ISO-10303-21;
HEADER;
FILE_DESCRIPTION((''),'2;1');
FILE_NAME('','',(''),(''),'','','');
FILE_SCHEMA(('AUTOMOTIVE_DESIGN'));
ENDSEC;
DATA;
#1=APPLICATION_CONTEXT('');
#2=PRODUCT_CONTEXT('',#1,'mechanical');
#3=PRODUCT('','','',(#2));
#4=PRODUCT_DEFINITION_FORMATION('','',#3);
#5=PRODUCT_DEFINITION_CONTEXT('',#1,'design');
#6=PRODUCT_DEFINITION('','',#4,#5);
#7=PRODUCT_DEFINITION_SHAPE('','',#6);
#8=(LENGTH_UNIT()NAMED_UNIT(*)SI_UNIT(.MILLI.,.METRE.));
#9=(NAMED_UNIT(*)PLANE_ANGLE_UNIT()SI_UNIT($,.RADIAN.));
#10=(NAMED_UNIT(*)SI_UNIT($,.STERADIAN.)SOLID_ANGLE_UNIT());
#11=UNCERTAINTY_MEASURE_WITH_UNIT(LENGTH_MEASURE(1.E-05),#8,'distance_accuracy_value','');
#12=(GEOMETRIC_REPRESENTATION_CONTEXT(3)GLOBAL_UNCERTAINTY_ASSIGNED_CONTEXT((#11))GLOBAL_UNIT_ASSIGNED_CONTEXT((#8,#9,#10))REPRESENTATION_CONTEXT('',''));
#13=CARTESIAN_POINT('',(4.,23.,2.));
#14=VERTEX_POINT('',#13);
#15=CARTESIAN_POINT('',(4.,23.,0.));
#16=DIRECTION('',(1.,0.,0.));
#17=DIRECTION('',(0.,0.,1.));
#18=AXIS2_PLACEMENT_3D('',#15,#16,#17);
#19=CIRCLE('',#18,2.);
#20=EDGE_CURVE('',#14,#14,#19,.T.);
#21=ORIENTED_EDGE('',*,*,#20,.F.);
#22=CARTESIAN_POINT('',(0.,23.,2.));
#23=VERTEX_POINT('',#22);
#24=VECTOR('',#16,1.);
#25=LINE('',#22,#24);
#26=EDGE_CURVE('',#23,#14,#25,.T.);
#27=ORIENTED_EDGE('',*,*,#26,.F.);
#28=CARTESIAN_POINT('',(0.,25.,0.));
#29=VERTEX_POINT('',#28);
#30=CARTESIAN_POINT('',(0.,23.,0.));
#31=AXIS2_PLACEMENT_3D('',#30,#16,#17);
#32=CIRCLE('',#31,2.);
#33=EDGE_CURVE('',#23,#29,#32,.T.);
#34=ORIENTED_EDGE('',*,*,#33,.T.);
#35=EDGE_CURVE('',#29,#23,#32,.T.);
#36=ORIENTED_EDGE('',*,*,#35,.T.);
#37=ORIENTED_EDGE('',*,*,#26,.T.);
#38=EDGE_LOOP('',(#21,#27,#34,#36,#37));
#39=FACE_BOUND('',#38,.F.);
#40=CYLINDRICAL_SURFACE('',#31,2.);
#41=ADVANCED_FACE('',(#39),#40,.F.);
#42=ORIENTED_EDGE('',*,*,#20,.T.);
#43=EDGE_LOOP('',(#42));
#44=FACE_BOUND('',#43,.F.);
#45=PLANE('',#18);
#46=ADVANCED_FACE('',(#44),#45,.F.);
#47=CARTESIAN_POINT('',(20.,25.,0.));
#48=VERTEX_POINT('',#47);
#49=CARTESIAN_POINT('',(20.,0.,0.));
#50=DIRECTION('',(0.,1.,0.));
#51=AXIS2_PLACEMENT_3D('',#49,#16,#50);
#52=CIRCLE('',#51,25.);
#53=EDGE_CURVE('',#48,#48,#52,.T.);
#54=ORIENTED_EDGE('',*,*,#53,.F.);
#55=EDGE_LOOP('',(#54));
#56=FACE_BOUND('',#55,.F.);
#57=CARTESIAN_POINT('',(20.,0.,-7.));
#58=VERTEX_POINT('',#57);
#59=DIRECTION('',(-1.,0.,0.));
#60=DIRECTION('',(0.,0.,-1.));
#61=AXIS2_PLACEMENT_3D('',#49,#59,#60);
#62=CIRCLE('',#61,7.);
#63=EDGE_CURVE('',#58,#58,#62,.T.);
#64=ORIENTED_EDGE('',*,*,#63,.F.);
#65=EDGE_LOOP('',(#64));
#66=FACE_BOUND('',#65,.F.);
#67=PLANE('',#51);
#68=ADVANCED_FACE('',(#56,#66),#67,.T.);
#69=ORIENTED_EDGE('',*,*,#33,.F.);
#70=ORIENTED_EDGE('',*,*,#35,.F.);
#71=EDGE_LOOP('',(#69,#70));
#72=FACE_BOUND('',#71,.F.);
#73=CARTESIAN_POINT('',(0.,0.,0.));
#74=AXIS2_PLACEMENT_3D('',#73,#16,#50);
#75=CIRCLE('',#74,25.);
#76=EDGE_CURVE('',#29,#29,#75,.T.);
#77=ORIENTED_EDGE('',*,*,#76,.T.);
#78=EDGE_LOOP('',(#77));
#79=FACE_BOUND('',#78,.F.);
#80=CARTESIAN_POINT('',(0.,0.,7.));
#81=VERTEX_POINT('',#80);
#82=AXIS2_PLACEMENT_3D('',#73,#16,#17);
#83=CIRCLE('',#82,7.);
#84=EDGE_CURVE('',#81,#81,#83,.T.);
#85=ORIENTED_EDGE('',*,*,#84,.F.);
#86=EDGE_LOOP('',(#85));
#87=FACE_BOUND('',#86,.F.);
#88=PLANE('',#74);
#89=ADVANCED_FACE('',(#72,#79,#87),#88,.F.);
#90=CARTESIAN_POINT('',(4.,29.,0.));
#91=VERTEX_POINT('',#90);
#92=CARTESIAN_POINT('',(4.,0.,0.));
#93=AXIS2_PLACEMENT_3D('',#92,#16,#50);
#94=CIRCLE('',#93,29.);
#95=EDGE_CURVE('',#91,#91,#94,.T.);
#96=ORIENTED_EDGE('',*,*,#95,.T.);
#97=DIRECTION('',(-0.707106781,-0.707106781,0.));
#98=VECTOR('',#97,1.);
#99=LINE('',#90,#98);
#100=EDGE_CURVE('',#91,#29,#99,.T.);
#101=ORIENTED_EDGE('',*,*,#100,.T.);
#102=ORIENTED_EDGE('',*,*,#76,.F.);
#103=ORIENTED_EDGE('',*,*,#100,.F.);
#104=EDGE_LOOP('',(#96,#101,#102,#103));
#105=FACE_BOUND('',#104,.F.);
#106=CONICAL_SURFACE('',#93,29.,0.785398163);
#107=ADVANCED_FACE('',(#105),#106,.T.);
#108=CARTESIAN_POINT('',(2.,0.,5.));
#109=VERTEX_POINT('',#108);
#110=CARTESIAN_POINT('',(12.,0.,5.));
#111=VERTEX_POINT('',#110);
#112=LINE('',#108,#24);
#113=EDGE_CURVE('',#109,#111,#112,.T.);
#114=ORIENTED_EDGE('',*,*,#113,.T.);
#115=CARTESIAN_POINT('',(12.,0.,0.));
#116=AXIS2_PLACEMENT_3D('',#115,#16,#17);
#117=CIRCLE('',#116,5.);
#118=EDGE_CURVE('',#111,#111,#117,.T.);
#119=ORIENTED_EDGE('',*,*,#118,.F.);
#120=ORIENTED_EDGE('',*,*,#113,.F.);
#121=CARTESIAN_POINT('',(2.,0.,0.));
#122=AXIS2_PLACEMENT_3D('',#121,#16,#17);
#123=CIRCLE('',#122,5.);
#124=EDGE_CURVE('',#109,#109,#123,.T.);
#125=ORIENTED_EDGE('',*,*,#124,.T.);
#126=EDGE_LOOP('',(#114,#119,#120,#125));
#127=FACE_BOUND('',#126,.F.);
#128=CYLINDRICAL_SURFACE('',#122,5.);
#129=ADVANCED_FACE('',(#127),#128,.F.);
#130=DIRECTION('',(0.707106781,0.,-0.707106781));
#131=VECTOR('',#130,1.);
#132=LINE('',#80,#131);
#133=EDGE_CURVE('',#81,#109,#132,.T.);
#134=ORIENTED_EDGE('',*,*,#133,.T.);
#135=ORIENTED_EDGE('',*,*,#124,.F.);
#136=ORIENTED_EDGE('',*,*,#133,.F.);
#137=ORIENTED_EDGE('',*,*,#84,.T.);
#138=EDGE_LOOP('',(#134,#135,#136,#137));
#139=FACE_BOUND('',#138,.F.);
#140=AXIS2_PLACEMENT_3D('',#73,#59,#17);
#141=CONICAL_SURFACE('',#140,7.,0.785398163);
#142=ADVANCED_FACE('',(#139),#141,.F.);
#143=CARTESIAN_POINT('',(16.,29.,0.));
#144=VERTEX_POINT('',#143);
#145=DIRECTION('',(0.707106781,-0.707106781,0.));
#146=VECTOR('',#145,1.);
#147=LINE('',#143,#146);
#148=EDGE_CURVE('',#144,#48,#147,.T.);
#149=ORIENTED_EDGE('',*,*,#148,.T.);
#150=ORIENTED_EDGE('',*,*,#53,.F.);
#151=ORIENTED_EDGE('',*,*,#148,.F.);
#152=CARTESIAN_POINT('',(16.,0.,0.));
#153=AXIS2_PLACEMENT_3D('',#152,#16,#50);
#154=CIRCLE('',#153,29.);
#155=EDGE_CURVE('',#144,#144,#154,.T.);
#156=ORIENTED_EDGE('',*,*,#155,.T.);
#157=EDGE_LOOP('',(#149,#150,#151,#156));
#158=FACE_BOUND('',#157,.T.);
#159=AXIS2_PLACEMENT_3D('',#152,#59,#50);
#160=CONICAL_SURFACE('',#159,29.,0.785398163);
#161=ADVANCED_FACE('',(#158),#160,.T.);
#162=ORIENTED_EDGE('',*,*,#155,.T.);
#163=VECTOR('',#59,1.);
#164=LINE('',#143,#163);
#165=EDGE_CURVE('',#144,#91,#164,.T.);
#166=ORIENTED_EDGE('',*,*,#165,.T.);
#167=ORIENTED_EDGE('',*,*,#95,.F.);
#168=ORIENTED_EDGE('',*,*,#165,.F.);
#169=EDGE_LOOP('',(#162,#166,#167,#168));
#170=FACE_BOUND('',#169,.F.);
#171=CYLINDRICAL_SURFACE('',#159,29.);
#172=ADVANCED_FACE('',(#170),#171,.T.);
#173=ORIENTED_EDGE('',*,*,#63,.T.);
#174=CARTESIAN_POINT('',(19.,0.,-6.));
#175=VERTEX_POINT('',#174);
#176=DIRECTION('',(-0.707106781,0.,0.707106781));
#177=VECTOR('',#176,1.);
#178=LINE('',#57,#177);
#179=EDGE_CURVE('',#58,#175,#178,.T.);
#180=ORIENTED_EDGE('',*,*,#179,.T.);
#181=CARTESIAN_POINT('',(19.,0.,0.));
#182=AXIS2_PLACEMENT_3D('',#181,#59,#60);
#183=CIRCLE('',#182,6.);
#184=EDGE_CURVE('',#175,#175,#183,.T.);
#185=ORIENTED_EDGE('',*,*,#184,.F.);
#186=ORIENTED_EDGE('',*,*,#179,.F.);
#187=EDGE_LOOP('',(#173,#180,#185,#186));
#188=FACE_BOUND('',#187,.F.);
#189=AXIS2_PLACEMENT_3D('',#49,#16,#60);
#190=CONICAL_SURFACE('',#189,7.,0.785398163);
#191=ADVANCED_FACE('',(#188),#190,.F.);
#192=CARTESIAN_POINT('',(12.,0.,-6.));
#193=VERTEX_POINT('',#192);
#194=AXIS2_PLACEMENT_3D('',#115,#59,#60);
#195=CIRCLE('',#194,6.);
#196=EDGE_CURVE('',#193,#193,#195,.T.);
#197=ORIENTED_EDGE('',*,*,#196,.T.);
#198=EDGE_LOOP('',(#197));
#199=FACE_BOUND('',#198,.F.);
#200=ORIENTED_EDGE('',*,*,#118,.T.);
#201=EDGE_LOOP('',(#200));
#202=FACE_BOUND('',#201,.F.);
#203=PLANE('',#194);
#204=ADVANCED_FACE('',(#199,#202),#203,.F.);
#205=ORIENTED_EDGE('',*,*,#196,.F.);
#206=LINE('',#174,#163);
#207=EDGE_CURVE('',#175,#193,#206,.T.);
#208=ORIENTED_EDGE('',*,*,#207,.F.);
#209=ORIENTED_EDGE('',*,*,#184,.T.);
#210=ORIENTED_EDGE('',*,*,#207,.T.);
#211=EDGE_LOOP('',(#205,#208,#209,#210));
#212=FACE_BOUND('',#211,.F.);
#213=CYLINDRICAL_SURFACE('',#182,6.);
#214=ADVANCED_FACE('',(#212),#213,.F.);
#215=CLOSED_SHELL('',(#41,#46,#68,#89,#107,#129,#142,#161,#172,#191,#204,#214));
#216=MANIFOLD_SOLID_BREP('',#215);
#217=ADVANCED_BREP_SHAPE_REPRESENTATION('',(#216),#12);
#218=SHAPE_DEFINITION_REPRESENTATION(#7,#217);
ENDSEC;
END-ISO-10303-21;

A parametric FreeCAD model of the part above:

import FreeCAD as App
import Part
import Sketcher
from FreeCAD import Vector

doc = App.newDocument("Part")
body = doc.addObject("PartDesign::Body", "Body")

# Sketch on XY plane
sketch1 = body.newObject("Sketcher::SketchObject", "Sketch")
sketch1.AttachmentSupport = (doc.getObject("XY_Plane"), [""])
sketch1.MapMode = "FlatFace"
sketch1.addGeometry([
    Part.LineSegment(Vector(0, 25, 0), Vector(0, 0, 0)),  # 0
    Part.LineSegment(Vector(0, 0, 0), Vector(20, 0, 0)),  # 1
    Part.LineSegment(Vector(20, 0, 0), Vector(20, 25, 0)),  # 2
    Part.LineSegment(Vector(20, 25, 0), Vector(16, 29, 0)),  # 3
    Part.LineSegment(Vector(16, 29, 0), Vector(4, 29, 0)),  # 4
    Part.LineSegment(Vector(4, 29, 0), Vector(0, 25, 0)),  # 5
], False)
sketch1.addConstraint([
    Sketcher.Constraint("Coincident", 0, 2, 1, 1),
    Sketcher.Constraint("Coincident", 1, 2, 2, 1),
    Sketcher.Constraint("Coincident", 2, 2, 3, 1),
    Sketcher.Constraint("Coincident", 3, 2, 4, 1),
    Sketcher.Constraint("Coincident", 4, 2, 5, 1),
    Sketcher.Constraint("Coincident", 5, 2, 0, 1),
    Sketcher.Constraint("Vertical", 0),
    Sketcher.Constraint("Horizontal", 1),
    Sketcher.Constraint("Vertical", 2),
    Sketcher.Constraint("Horizontal", 4),
    Sketcher.Constraint("Coincident", 0, 2, -1, 1),
    Sketcher.Constraint("Perpendicular", 3, 5),
    Sketcher.Constraint("Horizontal", 2, 2, 5, 2),
    Sketcher.Constraint("Equal", 3, 5),
    Sketcher.Constraint("DistanceX", 1, 1, 1, 2, 20.0),
    Sketcher.Constraint("DistanceY", -1, 1, 3, 2, 29.0),
    Sketcher.Constraint("DistanceX", -1, 1, 4, 2, 4.0),
])
revolution = body.newObject("PartDesign::Revolution", "Revolution")
revolution.Profile = sketch1
revolution.ReferenceAxis = (sketch1, ["H_Axis"])
revolution.Angle = 360

# Sketch on YZ plane
sketch2 = body.newObject("Sketcher::SketchObject", "Sketch001")
sketch2.AttachmentSupport = (doc.getObject("YZ_Plane"), [""])
sketch2.MapMode = "FlatFace"
sketch2.AttachmentOffset = App.Placement(Vector(0, 0, 20), App.Rotation())
sketch2.addGeometry(Part.Circle(Vector(0, 0, 0), Vector(0, 0, 1), 6), False)
sketch2.addConstraint([
    Sketcher.Constraint("Coincident", 0, 3, -1, 1),
    Sketcher.Constraint("Diameter", 0, 12.0),
])
doc.recompute()
hole = body.newObject("PartDesign::Hole", "Hole")
hole.Profile = sketch2
hole.ThreadType = "None"
hole.Diameter = 12
hole.DepthType = "Dimension"
hole.Depth = 8
hole.DrillPoint = "Flat"
hole.HoleCutType = "Countersink"
hole.HoleCutDiameter = 14
hole.HoleCutCountersinkAngle = 90

# Sketch on YZ plane
sketch3 = body.newObject("Sketcher::SketchObject", "Sketch002")
sketch3.AttachmentSupport = (doc.getObject("YZ_Plane"), [""])
sketch3.MapMode = "FlatFace"
sketch3.addGeometry(Part.Circle(Vector(0, 0, 0), Vector(0, 0, 1), 5), False)
sketch3.addConstraint([
    Sketcher.Constraint("Coincident", 0, 3, -1, 1),
    Sketcher.Constraint("Diameter", 0, 10.0),
])
doc.recompute()
hole2 = body.newObject("PartDesign::Hole", "Hole001")
hole2.Profile = sketch3
hole2.ThreadType = "None"
hole2.Diameter = 10
hole2.DepthType = "Dimension"
hole2.Depth = 12
hole2.DrillPoint = "Flat"
hole2.HoleCutType = "Countersink"
hole2.HoleCutDiameter = 14
hole2.HoleCutCountersinkAngle = 90
hole2.Reversed = True

# Sketch on YZ plane
sketch4 = body.newObject("Sketcher::SketchObject", "Sketch003")
sketch4.AttachmentSupport = (doc.getObject("YZ_Plane"), [""])
sketch4.MapMode = "FlatFace"
sketch4.addGeometry(Part.Circle(Vector(23, 0, 0), Vector(0, 0, 1), 2), False)
sketch4.addConstraint([
    Sketcher.Constraint("PointOnObject", 0, 3, -1),
    Sketcher.Constraint("Diameter", 0, 4.0),
    Sketcher.Constraint("DistanceX", -1, 1, 0, 3, 23.0),
])
doc.recompute()
hole3 = body.newObject("PartDesign::Hole", "Hole002")
hole3.Profile = sketch4
hole3.ThreadType = "None"
hole3.Diameter = 4
hole3.DepthType = "Dimension"
hole3.Depth = 4
hole3.DrillPoint = "Flat"
hole3.Reversed = True

doc.recompute()
